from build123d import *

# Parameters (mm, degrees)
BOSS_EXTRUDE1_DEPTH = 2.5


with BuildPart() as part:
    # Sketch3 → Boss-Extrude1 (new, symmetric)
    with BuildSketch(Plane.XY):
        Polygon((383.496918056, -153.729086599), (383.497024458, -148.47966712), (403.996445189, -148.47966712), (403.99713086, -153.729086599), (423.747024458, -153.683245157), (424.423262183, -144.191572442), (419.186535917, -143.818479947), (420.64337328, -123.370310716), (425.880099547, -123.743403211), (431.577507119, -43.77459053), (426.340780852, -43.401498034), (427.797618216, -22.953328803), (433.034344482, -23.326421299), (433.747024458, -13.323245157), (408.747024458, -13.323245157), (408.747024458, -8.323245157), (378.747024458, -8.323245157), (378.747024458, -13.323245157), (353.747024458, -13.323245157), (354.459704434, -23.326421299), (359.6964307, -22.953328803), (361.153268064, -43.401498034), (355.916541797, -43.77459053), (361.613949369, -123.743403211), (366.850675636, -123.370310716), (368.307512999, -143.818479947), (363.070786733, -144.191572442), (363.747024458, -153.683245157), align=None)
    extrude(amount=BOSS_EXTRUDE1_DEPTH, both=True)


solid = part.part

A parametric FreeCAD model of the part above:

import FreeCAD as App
import Part
import Sketcher

V = App.Vector


def add_polygon(sketch, points):
    """Adds a closed chain of lines whose ends are joined by coincident constraints."""
    first, n = sketch.GeometryCount, len(points)
    for a, b in zip(points, points[1:] + points[:1]):
        sketch.addGeometry(Part.LineSegment(App.Vector(*a, 0), App.Vector(*b, 0)), False)
    for i in range(n):
        sketch.addConstraint(Sketcher.Constraint("Coincident", first + i, 2, first + (i + 1) % n, 1))

doc = App.newDocument("Part")
params = doc.addObject("Spreadsheet::Sheet", "Params")
for row, (alias, value) in enumerate([
    ("sketch1_width", "25 mm"),
    ("sketch1_width2", "30 mm"),
    ("sketch1_height", "5 mm"),
    ("sketch1_length", "20.5 mm"),
    ("sketch1_length2", "5.25 mm"),
    ("pad1_length", "5 mm"),
], start=1):
    params.set(f"A{row}", alias)
    params.set(f"B{row}", "=" + value)
    params.setAlias(f"B{row}", alias)

body = doc.addObject("PartDesign::Body", "Body")

sketch1 = body.newObject("Sketcher::SketchObject", "Sketch")
sketch1.AttachmentSupport = (doc.getObject("XY_Plane"), [""])
sketch1.MapMode = "FlatFace"
add_polygon(sketch1, [(383, -154), (383, -148), (404, -148), (404, -154), (424, -154), (424, -144), (419, -144), (421, -123), (426, -124), (432, -44), (426, -43), (428, -23), (433, -23), (434, -13), (409, -13), (409, -8), (379, -8), (379, -13), (354, -13), (354, -23), (360, -23), (361, -43), (356, -44), (362, -124), (367, -123), (368, -144), (363, -144), (364, -154)])
sketch1.addConstraint(Sketcher.Constraint("Horizontal", 1))
sketch1.addConstraint(Sketcher.Constraint("Horizontal", 13))
sketch1.addConstraint(Sketcher.Constraint("Vertical", 14))
sketch1.addConstraint(Sketcher.Constraint("Horizontal", 15))
sketch1.addConstraint(Sketcher.Constraint("Vertical", 16))
sketch1.addConstraint(Sketcher.Constraint("Horizontal", 17))
sketch1.addConstraint(Sketcher.Constraint("Perpendicular", 4, 5))
sketch1.addConstraint(Sketcher.Constraint("Perpendicular", 5, 6))
sketch1.addConstraint(Sketcher.Constraint("Perpendicular", 6, 7))
sketch1.addConstraint(Sketcher.Constraint("Perpendicular", 7, 8))
sketch1.addConstraint(Sketcher.Constraint("Perpendicular", 8, 9))
sketch1.addConstraint(Sketcher.Constraint("Perpendicular", 9, 10))
sketch1.addConstraint(Sketcher.Constraint("Perpendicular", 10, 11))
sketch1.addConstraint(Sketcher.Constraint("Perpendicular", 11, 12))
sketch1.addConstraint(Sketcher.Constraint("Perpendicular", 18, 19))
sketch1.addConstraint(Sketcher.Constraint("Perpendicular", 19, 20))
sketch1.addConstraint(Sketcher.Constraint("Perpendicular", 20, 21))
sketch1.addConstraint(Sketcher.Constraint("Perpendicular", 21, 22))
sketch1.addConstraint(Sketcher.Constraint("Perpendicular", 22, 23))
sketch1.addConstraint(Sketcher.Constraint("Perpendicular", 23, 24))
sketch1.addConstraint(Sketcher.Constraint("Perpendicular", 24, 25))
sketch1.addConstraint(Sketcher.Constraint("Perpendicular", 25, 26))
sketch1.addConstraint(Sketcher.Constraint("Horizontal", 13, 2, 16, 2))
sketch1.addConstraint(Sketcher.Constraint("Horizontal", 11, 2, 18, 2))
sketch1.addConstraint(Sketcher.Constraint("Horizontal", 10, 2, 19, 2))
sketch1.addConstraint(Sketcher.Constraint("Horizontal", 9, 2, 20, 2))
sketch1.addConstraint(Sketcher.Constraint("Horizontal", 8, 2, 21, 2))
sketch1.addConstraint(Sketcher.Constraint("Horizontal", 7, 2, 22, 2))
sketch1.addConstraint(Sketcher.Constraint("Horizontal", 6, 2, 23, 2))
sketch1.addConstraint(Sketcher.Constraint("Horizontal", 5, 2, 24, 2))
sketch1.addConstraint(Sketcher.Constraint("Horizontal", 4, 2, 25, 2))
sketch1.addConstraint(Sketcher.Constraint("Horizontal", 3, 2, 26, 2))
sketch1.addConstraint(Sketcher.Constraint("Horizontal", 2, 2, 27, 2))
sketch1.addConstraint(Sketcher.Constraint("Equal", 13, 17))
sketch1.addConstraint(Sketcher.Constraint("Equal", 5, 7))
sketch1.addConstraint(Sketcher.Constraint("Equal", 7, 9))
sketch1.addConstraint(Sketcher.Constraint("Equal", 6, 10))
sketch1.addConstraint(Sketcher.Constraint("Equal", 9, 11))
sketch1.addConstraint(Sketcher.Constraint("Equal", 11, 19))
sketch1.addConstraint(Sketcher.Constraint("Equal", 3, 27))
sketch1.addConstraint(Sketcher.Constraint("DistanceX", 13, 2, 13, 1, 25.0))
sketch1.addConstraint(Sketcher.Constraint("DistanceX", 15, 2, 15, 1, 30.0))
sketch1.addConstraint(Sketcher.Constraint("DistanceY", 14, 1, 14, 2, 5.0))
sketch1.addConstraint(Sketcher.Constraint("Distance", 6, 20.5))
sketch1.addConstraint(Sketcher.Constraint("Distance", 5, 5.25))
sketch1.addConstraint(Sketcher.Constraint("DistanceX", 0, 2, 3, 2, 40.25))
sketch1.addConstraint(Sketcher.Constraint("DistanceX", 26, 2, 0, 2, 19.75))
sketch1.addConstraint(Sketcher.Constraint("DistanceX", 1, 1, 1, 2, 20.499421))
sketch1.addConstraint(Sketcher.Constraint("DistanceX", -1, 1, 7, 2, 425.8801))
sketch1.addConstraint(Sketcher.Constraint("DistanceY", 9, 2, -1, 1, 43.401498))
sketch1.addConstraint(Sketcher.Constraint("Distance", 0, 5.249419))
sketch1.addConstraint(Sketcher.Constraint("Distance", 4, 9.515732))
sketch1.addConstraint(Sketcher.Constraint("Distance", 12, 10.028532))
sketch1.addConstraint(Sketcher.Constraint("DistanceX", -1, 1, 2, 2, 403.997131))
sketch1.addConstraint(Sketcher.Constraint("DistanceY", 5, 2, -1, 1, 143.81848))
sketch1.addConstraint(Sketcher.Constraint("DistanceY", 2, 2, 3, 2, 0.045841))
sketch1.setExpression("Constraints[68]", "Params.sketch1_width")
sketch1.setExpression("Constraints[69]", "Params.sketch1_width2")
sketch1.setExpression("Constraints[70]", "Params.sketch1_height")
sketch1.setExpression("Constraints[71]", "Params.sketch1_length")
sketch1.setExpression("Constraints[72]", "Params.sketch1_length2")
pad1 = body.newObject("PartDesign::Pad", "Pad")
pad1.Profile = sketch1
pad1.setExpression("Length", "Params.pad1_length")
pad1.Midplane = True

doc.recompute()
